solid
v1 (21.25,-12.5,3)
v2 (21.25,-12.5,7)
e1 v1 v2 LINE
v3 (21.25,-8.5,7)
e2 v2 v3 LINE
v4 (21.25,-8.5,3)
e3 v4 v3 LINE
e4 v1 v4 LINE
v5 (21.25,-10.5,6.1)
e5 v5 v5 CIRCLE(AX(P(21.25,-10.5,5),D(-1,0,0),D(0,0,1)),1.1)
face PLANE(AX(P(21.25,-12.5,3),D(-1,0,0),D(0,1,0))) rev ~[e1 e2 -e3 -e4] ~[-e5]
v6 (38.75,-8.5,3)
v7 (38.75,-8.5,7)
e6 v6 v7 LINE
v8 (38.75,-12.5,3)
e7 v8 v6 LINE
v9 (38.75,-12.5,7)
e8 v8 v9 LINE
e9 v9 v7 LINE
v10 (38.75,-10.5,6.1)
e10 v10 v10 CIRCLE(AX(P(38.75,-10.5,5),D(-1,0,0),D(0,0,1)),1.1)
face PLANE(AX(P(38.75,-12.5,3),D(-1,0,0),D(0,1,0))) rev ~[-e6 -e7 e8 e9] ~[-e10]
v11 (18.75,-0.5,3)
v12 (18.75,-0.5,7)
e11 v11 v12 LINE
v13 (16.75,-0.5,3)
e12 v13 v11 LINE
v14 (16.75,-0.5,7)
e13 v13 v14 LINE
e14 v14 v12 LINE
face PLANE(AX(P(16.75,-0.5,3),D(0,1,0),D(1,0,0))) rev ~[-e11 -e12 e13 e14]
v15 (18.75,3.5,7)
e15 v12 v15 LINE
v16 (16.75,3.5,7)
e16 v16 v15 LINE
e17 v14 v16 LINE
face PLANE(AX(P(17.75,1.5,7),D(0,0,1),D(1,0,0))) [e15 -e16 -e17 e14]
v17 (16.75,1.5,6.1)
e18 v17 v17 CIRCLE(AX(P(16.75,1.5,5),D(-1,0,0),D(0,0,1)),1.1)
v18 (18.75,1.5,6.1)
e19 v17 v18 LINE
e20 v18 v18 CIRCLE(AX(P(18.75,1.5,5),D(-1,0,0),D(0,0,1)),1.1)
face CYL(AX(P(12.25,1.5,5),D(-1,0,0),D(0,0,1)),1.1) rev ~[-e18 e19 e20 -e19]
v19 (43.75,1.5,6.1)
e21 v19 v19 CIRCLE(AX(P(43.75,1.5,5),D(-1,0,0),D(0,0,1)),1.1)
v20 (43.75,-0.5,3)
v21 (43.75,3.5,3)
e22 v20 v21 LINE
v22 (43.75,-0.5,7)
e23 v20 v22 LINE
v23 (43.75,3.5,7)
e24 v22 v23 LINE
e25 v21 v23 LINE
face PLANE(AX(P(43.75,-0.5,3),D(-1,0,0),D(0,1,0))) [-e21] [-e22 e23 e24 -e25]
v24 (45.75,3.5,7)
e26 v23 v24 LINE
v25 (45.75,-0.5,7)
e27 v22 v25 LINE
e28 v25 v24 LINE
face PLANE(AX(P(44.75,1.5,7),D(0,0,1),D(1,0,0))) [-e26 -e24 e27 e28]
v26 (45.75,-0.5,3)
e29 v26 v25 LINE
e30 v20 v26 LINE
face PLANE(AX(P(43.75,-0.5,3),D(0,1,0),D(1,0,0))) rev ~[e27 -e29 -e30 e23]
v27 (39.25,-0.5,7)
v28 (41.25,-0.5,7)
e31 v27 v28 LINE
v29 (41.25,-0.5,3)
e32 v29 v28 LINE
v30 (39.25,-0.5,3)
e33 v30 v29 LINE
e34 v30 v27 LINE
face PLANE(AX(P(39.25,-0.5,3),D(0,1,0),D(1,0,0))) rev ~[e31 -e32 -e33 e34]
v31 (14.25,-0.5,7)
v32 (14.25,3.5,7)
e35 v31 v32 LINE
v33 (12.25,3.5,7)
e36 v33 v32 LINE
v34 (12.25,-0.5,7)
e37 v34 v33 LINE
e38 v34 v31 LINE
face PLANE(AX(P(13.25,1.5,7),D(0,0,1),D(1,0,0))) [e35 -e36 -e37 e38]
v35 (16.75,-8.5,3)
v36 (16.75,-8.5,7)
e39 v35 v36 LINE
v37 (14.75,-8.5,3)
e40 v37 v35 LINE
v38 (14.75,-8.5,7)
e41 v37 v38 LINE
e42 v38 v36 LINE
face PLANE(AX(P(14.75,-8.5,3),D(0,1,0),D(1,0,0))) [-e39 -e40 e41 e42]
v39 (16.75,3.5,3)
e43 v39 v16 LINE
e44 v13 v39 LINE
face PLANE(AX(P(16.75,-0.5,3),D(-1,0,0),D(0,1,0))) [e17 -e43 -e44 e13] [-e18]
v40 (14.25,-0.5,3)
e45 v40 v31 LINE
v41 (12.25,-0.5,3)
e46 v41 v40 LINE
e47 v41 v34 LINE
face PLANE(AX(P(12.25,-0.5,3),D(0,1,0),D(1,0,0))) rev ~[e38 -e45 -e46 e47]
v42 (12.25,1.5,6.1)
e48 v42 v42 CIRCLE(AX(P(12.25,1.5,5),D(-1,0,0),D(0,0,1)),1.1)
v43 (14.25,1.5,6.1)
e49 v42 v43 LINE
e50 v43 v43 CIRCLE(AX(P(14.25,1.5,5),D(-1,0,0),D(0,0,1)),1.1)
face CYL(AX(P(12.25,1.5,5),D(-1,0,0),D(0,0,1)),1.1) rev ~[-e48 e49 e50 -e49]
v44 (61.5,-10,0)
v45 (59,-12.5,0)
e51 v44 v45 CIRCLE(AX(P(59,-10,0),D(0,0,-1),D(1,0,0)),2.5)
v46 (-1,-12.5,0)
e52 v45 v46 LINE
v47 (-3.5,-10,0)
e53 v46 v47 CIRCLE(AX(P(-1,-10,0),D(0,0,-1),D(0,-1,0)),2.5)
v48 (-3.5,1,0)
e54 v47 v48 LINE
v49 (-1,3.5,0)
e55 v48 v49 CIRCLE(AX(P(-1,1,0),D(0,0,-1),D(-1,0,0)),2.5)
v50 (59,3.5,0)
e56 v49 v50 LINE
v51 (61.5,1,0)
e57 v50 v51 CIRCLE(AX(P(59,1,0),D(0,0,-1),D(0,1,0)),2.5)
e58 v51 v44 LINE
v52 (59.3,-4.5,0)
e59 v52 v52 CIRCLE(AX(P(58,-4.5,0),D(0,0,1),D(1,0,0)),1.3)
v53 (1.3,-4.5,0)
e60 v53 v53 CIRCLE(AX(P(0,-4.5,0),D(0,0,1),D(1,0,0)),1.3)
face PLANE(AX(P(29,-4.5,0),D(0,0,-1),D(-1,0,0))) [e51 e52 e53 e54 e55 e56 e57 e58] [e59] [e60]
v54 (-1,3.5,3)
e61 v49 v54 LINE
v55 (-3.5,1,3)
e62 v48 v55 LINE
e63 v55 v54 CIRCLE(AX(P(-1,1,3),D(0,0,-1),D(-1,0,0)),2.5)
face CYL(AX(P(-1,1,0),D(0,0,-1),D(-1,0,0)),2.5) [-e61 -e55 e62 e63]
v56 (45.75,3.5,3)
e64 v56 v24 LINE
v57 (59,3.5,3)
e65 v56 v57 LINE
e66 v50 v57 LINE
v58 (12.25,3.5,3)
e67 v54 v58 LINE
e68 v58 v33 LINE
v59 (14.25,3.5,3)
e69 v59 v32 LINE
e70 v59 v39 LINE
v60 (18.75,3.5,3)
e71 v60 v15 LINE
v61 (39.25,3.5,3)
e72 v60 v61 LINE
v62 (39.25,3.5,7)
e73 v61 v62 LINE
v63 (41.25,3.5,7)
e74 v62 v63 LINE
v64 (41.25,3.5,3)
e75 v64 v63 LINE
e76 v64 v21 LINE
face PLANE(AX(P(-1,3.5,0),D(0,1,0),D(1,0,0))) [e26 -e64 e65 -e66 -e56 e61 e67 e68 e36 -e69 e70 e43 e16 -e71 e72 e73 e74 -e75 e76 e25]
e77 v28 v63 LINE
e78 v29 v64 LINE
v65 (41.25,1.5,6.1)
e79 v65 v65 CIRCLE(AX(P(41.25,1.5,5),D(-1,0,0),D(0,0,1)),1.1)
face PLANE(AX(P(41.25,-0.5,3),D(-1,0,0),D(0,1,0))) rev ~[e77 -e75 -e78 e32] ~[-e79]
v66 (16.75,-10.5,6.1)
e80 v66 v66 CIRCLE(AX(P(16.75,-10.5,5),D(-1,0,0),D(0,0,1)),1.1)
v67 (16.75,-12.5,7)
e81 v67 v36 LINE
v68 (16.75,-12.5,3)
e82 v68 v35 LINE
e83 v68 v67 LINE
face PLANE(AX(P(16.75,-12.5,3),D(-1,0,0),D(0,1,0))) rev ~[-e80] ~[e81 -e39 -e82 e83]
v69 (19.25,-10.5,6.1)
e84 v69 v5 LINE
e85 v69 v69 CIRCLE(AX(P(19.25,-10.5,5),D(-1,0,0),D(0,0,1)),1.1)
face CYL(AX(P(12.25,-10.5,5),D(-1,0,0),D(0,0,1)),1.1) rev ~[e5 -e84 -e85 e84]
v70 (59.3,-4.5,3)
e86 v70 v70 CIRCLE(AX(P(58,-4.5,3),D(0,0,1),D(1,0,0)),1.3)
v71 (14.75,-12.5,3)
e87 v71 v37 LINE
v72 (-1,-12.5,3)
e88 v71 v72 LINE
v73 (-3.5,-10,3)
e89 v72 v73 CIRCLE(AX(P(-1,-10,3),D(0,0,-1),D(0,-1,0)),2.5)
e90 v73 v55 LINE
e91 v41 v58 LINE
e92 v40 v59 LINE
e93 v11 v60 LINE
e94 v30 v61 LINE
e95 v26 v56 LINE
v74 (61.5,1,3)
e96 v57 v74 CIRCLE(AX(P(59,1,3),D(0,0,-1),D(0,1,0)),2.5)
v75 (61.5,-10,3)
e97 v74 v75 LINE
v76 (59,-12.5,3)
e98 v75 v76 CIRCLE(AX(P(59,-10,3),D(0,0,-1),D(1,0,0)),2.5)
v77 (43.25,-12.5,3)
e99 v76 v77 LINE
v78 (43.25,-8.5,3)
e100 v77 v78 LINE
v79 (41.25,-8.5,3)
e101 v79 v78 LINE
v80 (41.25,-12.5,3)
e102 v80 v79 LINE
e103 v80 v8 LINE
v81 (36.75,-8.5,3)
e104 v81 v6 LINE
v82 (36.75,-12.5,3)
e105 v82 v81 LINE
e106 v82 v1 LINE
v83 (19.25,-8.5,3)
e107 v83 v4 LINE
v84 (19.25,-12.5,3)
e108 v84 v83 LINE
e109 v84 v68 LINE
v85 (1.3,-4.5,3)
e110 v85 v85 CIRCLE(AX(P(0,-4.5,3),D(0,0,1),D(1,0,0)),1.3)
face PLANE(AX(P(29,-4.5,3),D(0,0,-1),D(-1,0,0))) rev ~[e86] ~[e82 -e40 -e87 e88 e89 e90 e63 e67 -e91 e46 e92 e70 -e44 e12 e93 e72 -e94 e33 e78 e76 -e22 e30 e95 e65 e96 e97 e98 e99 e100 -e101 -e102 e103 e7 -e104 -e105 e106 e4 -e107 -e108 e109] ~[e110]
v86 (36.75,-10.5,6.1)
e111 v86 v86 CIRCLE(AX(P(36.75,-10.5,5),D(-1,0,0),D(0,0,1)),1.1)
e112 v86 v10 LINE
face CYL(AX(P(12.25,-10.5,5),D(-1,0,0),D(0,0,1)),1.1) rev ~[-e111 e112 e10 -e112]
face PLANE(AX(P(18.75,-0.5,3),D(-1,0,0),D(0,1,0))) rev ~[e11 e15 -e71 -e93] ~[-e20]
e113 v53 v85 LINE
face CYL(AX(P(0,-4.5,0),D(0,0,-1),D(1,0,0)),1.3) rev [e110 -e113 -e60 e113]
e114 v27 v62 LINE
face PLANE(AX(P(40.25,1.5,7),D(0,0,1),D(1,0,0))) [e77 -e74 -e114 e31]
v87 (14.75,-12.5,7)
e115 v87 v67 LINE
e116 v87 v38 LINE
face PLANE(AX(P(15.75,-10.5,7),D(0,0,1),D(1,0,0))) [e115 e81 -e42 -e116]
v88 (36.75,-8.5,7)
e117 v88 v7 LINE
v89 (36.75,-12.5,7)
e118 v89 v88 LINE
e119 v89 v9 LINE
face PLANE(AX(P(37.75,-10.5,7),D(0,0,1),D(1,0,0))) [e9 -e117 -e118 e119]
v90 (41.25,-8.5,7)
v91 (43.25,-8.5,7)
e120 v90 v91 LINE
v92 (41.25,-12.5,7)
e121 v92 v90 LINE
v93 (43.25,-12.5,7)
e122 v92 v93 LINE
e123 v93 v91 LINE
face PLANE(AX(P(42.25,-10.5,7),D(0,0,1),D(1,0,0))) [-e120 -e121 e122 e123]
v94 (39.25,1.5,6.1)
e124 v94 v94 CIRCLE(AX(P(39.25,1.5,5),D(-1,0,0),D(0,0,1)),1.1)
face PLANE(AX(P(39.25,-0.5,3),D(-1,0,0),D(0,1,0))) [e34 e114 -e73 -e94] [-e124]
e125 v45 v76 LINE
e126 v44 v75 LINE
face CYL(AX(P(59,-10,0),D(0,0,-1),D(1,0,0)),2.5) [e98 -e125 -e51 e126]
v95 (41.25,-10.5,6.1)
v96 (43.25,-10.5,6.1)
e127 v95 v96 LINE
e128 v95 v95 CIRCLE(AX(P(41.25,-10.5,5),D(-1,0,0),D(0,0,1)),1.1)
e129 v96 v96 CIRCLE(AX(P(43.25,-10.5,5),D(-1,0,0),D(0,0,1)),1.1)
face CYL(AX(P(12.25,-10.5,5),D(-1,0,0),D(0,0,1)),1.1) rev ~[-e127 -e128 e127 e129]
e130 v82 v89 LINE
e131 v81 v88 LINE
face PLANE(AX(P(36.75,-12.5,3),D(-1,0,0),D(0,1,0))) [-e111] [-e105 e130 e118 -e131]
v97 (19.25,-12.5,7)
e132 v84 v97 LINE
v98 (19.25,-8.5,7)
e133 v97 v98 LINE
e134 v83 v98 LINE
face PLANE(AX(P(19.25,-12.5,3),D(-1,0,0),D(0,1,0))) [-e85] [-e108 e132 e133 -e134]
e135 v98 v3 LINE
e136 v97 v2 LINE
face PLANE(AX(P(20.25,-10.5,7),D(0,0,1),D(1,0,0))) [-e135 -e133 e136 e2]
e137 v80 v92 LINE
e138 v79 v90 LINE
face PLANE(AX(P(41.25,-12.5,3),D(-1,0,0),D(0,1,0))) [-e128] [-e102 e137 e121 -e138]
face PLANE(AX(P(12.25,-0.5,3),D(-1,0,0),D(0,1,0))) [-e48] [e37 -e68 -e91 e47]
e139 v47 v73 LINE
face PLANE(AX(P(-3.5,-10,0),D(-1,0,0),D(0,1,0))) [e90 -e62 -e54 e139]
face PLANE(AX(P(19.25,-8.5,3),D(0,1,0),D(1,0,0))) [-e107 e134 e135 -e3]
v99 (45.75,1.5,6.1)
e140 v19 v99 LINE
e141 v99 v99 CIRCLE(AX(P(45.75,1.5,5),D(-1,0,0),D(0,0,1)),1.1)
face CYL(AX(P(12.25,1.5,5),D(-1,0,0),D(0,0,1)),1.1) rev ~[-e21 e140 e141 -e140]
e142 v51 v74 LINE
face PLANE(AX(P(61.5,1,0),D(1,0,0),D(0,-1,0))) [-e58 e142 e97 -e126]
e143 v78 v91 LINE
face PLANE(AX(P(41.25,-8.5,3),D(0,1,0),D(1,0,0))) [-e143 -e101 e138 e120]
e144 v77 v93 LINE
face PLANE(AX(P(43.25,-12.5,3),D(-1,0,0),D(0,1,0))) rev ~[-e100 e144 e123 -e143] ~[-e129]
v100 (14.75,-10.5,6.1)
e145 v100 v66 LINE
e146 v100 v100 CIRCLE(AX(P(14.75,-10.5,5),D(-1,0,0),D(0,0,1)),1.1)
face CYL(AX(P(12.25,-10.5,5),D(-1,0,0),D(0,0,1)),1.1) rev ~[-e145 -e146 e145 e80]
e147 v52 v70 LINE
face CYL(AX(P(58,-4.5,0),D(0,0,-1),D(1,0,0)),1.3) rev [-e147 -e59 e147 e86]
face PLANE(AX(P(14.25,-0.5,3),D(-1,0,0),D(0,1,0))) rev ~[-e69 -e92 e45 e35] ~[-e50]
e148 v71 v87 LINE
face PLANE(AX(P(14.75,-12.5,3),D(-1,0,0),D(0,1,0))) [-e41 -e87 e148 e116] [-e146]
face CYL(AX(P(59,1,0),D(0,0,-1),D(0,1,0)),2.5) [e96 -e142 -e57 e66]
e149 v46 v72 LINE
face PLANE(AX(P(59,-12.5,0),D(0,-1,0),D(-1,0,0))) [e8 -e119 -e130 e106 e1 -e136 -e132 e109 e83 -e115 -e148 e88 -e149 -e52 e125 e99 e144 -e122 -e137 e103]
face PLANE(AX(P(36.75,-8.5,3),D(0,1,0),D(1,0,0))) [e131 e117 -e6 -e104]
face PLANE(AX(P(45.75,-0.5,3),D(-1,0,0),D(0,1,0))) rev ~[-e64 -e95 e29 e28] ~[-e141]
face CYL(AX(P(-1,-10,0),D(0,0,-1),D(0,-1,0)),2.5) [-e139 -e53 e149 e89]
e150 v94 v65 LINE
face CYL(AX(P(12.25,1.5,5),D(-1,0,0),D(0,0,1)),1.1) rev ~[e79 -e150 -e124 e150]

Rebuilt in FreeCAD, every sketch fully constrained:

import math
import FreeCAD as App
import Part
import Sketcher

V = App.Vector
Q = App.Units.Quantity


def add_polygon(sketch, points):
    """Adds a closed chain of lines whose ends are joined by coincident constraints."""
    first, n = sketch.GeometryCount, len(points)
    for a, b in zip(points, points[1:] + points[:1]):
        sketch.addGeometry(Part.LineSegment(App.Vector(*a, 0), App.Vector(*b, 0)), False)
    for i in range(n):
        sketch.addConstraint(Sketcher.Constraint("Coincident", first + i, 2, first + (i + 1) % n, 1))

doc = App.newDocument("Part")
body = doc.addObject("PartDesign::Body", "Body")

sketch1 = body.newObject("Sketcher::SketchObject", "Sketch")
sketch1.AttachmentSupport = (doc.getObject("XY_Plane"), [""])
sketch1.MapMode = "FlatFace"
sketch1.addGeometry(Part.LineSegment(V(-3.5, 1, 0), V(-3.5, -10, 0)), False)
sketch1.addGeometry(Part.ArcOfCircle(Part.Circle(V(-1, -10, 0), V(0, 0, 1), 2.5), math.radians(180), math.radians(270)), False)
sketch1.addGeometry(Part.LineSegment(V(-1, -12.5, 0), V(59, -12.5, 0)), False)
sketch1.addGeometry(Part.ArcOfCircle(Part.Circle(V(59, -10, 0), V(0, 0, 1), 2.5), math.radians(-90), math.radians(0)), False)
sketch1.addGeometry(Part.LineSegment(V(61.5, -10, 0), V(61.5, 1, 0)), False)
sketch1.addGeometry(Part.ArcOfCircle(Part.Circle(V(59, 1, 0), V(0, 0, 1), 2.5), math.radians(0), math.radians(90)), False)
sketch1.addGeometry(Part.LineSegment(V(59, 3.5, 0), V(-1, 3.5, 0)), False)
sketch1.addGeometry(Part.ArcOfCircle(Part.Circle(V(-1, 1, 0), V(0, 0, 1), 2.5), math.radians(90), math.radians(180)), False)
sketch1.addGeometry(Part.Circle(V(58, -4.5, 0), V(0, 0, 1), 1.3), False)
sketch1.addGeometry(Part.Circle(V(0, -4.5, 0), V(0, 0, 1), 1.3), False)
sketch1.addConstraint(Sketcher.Constraint("Tangent", 0, 2, 1, 1))
sketch1.addConstraint(Sketcher.Constraint("Tangent", 1, 2, 2, 1))
sketch1.addConstraint(Sketcher.Constraint("Tangent", 2, 2, 3, 1))
sketch1.addConstraint(Sketcher.Constraint("Tangent", 3, 2, 4, 1))
sketch1.addConstraint(Sketcher.Constraint("Tangent", 4, 2, 5, 1))
sketch1.addConstraint(Sketcher.Constraint("Tangent", 5, 2, 6, 1))
sketch1.addConstraint(Sketcher.Constraint("Tangent", 6, 2, 7, 1))
sketch1.addConstraint(Sketcher.Constraint("Tangent", 7, 2, 0, 1))
sketch1.addConstraint(Sketcher.Constraint("Vertical", 0))
sketch1.addConstraint(Sketcher.Constraint("Horizontal", 2))
sketch1.addConstraint(Sketcher.Constraint("Vertical", 4))
sketch1.addConstraint(Sketcher.Constraint("Horizontal", 6))
sketch1.addConstraint(Sketcher.Constraint("Equal", 1, 3))
sketch1.addConstraint(Sketcher.Constraint("Equal", 3, 5))
sketch1.addConstraint(Sketcher.Constraint("Equal", 5, 7))
sketch1.addConstraint(Sketcher.Constraint("Equal", 8, 9))
sketch1.addConstraint(Sketcher.Constraint("PointOnObject", 9, 3, -2))
sketch1.addConstraint(Sketcher.Constraint("Horizontal", 8, 3, 9, 3))
sketch1.addConstraint(Sketcher.Constraint("Diameter", 8, Q("2.6 mm")))
sketch1.addConstraint(Sketcher.Constraint("Radius", 1, Q("2.5 mm")))
sketch1.addConstraint(Sketcher.Constraint("DistanceX", 2, 1, 2, 2, Q("60 mm")))
sketch1.addConstraint(Sketcher.Constraint("DistanceY", 0, 2, 0, 1, Q("11 mm")))
sketch1.addConstraint(Sketcher.Constraint("DistanceX", 1, 3, -1, 1, Q("1 mm")))
sketch1.addConstraint(Sketcher.Constraint("DistanceY", 1, 3, -1, 1, Q("10 mm")))
sketch1.addConstraint(Sketcher.Constraint("DistanceX", -1, 1, 8, 3, Q("58 mm")))
sketch1.addConstraint(Sketcher.Constraint("DistanceY", 1, 2, 9, 3, Q("8 mm")))
pad1 = body.newObject("PartDesign::Pad", "Pad")
pad1.Profile = sketch1
pad1.Length = 3

sketch2 = body.newObject("Sketcher::SketchObject", "Sketch001")
sketch2.AttachmentSupport = (doc.getObject("XY_Plane"), [""])
sketch2.MapMode = "FlatFace"
sketch2.AttachmentOffset = App.Placement(V(0, 0, 3), App.Rotation())
add_polygon(sketch2, [(12.2, 3.5), (12.2, -0.5), (14.2, -0.5), (14.2, 3.5)])
add_polygon(sketch2, [(16.8, 3.5), (16.8, -0.5), (18.8, -0.5), (18.8, 3.5)])
add_polygon(sketch2, [(39.2, 3.5), (39.2, -0.5), (41.2, -0.5), (41.2, 3.5)])
add_polygon(sketch2, [(43.8, 3.5), (43.8, -0.5), (45.8, -0.5), (45.8, 3.5)])
add_polygon(sketch2, [(14.8, -8.5), (14.8, -12.5), (16.8, -12.5), (16.8, -8.5)])
add_polygon(sketch2, [(19.2, -8.5), (19.2, -12.5), (21.2, -12.5), (21.2, -8.5)])
add_polygon(sketch2, [(36.8, -8.5), (36.8, -12.5), (38.8, -12.5), (38.8, -8.5)])
add_polygon(sketch2, [(41.2, -8.5), (41.2, -12.5), (43.2, -12.5), (43.2, -8.5)])
sketch2.addConstraint(Sketcher.Constraint("Vertical", 0))
sketch2.addConstraint(Sketcher.Constraint("Horizontal", 1))
sketch2.addConstraint(Sketcher.Constraint("Vertical", 2))
sketch2.addConstraint(Sketcher.Constraint("Horizontal", 3))
sketch2.addConstraint(Sketcher.Constraint("Vertical", 4))
sketch2.addConstraint(Sketcher.Constraint("Horizontal", 5))
sketch2.addConstraint(Sketcher.Constraint("Vertical", 6))
sketch2.addConstraint(Sketcher.Constraint("Horizontal", 7))
sketch2.addConstraint(Sketcher.Constraint("Vertical", 8))
sketch2.addConstraint(Sketcher.Constraint("Horizontal", 9))
sketch2.addConstraint(Sketcher.Constraint("Vertical", 10))
sketch2.addConstraint(Sketcher.Constraint("Horizontal", 11))
sketch2.addConstraint(Sketcher.Constraint("Vertical", 12))
sketch2.addConstraint(Sketcher.Constraint("Horizontal", 13))
sketch2.addConstraint(Sketcher.Constraint("Vertical", 14))
sketch2.addConstraint(Sketcher.Constraint("Horizontal", 15))
sketch2.addConstraint(Sketcher.Constraint("Vertical", 16))
sketch2.addConstraint(Sketcher.Constraint("Horizontal", 17))
sketch2.addConstraint(Sketcher.Constraint("Vertical", 18))
sketch2.addConstraint(Sketcher.Constraint("Horizontal", 19))
sketch2.addConstraint(Sketcher.Constraint("Vertical", 20))
sketch2.addConstraint(Sketcher.Constraint("Horizontal", 21))
sketch2.addConstraint(Sketcher.Constraint("Vertical", 22))
sketch2.addConstraint(Sketcher.Constraint("Horizontal", 23))
sketch2.addConstraint(Sketcher.Constraint("Vertical", 24))
sketch2.addConstraint(Sketcher.Constraint("Horizontal", 25))
sketch2.addConstraint(Sketcher.Constraint("Vertical", 26))
sketch2.addConstraint(Sketcher.Constraint("Horizontal", 27))
sketch2.addConstraint(Sketcher.Constraint("Vertical", 28))
sketch2.addConstraint(Sketcher.Constraint("Horizontal", 29))
sketch2.addConstraint(Sketcher.Constraint("Vertical", 30))
sketch2.addConstraint(Sketcher.Constraint("Horizontal", 31))
sketch2.addConstraint(Sketcher.Constraint("Horizontal", 1, 2, 4, 2))
sketch2.addConstraint(Sketcher.Constraint("Horizontal", 3, 2, 6, 2))
sketch2.addConstraint(Sketcher.Constraint("Horizontal", 5, 2, 8, 2))
sketch2.addConstraint(Sketcher.Constraint("Horizontal", 7, 2, 10, 2))
sketch2.addConstraint(Sketcher.Constraint("Horizontal", 9, 2, 12, 2))
sketch2.addConstraint(Sketcher.Constraint("Horizontal", 11, 2, 14, 2))
sketch2.addConstraint(Sketcher.Constraint("Horizontal", 17, 2, 20, 2))
sketch2.addConstraint(Sketcher.Constraint("Horizontal", 19, 2, 22, 2))
sketch2.addConstraint(Sketcher.Constraint("Horizontal", 21, 2, 24, 2))
sketch2.addConstraint(Sketcher.Constraint("Horizontal", 23, 2, 26, 2))
sketch2.addConstraint(Sketcher.Constraint("Horizontal", 25, 2, 28, 2))
sketch2.addConstraint(Sketcher.Constraint("Horizontal", 27, 2, 30, 2))
sketch2.addConstraint(Sketcher.Constraint("Vertical", 7, 2, 17, 2))
sketch2.addConstraint(Sketcher.Constraint("Vertical", 10, 2, 28, 2))
sketch2.addConstraint(Sketcher.Constraint("Equal", 3, 5))
sketch2.addConstraint(Sketcher.Constraint("Equal", 7, 9))
sketch2.addConstraint(Sketcher.Constraint("Equal", 11, 13))
sketch2.addConstraint(Sketcher.Constraint("Equal", 15, 17))
sketch2.addConstraint(Sketcher.Constraint("Equal", 19, 21))
sketch2.addConstraint(Sketcher.Constraint("Equal", 23, 25))
sketch2.addConstraint(Sketcher.Constraint("Equal", 27, 29))
sketch2.addConstraint(Sketcher.Constraint("Equal", 14, 16))
sketch2.addConstraint(Sketcher.Constraint("DistanceX", 1, 1, 1, 2, Q("2 mm")))
sketch2.addConstraint(Sketcher.Constraint("DistanceY", 0, 2, 0, 1, Q("4 mm")))
sketch2.addConstraint(Sketcher.Constraint("DistanceX", 1, 2, 8, 2, Q("25 mm")))
sketch2.addConstraint(Sketcher.Constraint("DistanceX", 5, 2, 12, 2, Q("25 mm")))
sketch2.addConstraint(Sketcher.Constraint("DistanceY", 16, 2, 1, 2, Q("12 mm")))
sketch2.addConstraint(Sketcher.Constraint("DistanceX", 24, 2, 12, 2, Q("7 mm")))
sketch2.addConstraint(Sketcher.Constraint("DistanceY", 0, 2, -1, 1, Q("0.5 mm")))
sketch2.addConstraint(Sketcher.Constraint("DistanceX", 1, 2, 4, 2, Q("2.5 mm")))
sketch2.addConstraint(Sketcher.Constraint("DistanceX", 17, 2, 20, 2, Q("2.5 mm")))
sketch2.addConstraint(Sketcher.Constraint("DistanceX", -1, 1, 0, 2, Q("12.25 mm")))
pad2 = body.newObject("PartDesign::Pad", "Pad001")
pad2.Profile = sketch2
pad2.Length = 4

sketch3 = body.newObject("Sketcher::SketchObject", "Sketch002")
sketch3.AttachmentSupport = (doc.getObject("YZ_Plane"), [""])
sketch3.MapMode = "FlatFace"
sketch3.AttachmentOffset = App.Placement(V(0, 0, 12.25), App.Rotation())
sketch3.addGeometry(Part.Circle(V(1.5, 5, 0), V(0, 0, 1), 1.1), False)
sketch3.addGeometry(Part.Circle(V(-10.5, 5, 0), V(0, 0, 1), 1.1), False)
sketch3.addConstraint(Sketcher.Constraint("Equal", 0, 1))
sketch3.addConstraint(Sketcher.Constraint("Horizontal", 0, 3, 1, 3))
sketch3.addConstraint(Sketcher.Constraint("Diameter", 0, Q("2.2 mm")))
sketch3.addConstraint(Sketcher.Constraint("DistanceY", -1, 1, 0, 3, Q("5 mm")))
sketch3.addConstraint(Sketcher.Constraint("DistanceX", 1, 3, 0, 3, Q("12 mm")))
sketch3.addConstraint(Sketcher.Constraint("DistanceX", -1, 1, 0, 3, Q("1.5 mm")))
pocket1 = body.newObject("PartDesign::Pocket", "Pocket")
pocket1.Profile = sketch3
pocket1.Type = "ThroughAll"
pocket1.Reversed = True

doc.recompute()
